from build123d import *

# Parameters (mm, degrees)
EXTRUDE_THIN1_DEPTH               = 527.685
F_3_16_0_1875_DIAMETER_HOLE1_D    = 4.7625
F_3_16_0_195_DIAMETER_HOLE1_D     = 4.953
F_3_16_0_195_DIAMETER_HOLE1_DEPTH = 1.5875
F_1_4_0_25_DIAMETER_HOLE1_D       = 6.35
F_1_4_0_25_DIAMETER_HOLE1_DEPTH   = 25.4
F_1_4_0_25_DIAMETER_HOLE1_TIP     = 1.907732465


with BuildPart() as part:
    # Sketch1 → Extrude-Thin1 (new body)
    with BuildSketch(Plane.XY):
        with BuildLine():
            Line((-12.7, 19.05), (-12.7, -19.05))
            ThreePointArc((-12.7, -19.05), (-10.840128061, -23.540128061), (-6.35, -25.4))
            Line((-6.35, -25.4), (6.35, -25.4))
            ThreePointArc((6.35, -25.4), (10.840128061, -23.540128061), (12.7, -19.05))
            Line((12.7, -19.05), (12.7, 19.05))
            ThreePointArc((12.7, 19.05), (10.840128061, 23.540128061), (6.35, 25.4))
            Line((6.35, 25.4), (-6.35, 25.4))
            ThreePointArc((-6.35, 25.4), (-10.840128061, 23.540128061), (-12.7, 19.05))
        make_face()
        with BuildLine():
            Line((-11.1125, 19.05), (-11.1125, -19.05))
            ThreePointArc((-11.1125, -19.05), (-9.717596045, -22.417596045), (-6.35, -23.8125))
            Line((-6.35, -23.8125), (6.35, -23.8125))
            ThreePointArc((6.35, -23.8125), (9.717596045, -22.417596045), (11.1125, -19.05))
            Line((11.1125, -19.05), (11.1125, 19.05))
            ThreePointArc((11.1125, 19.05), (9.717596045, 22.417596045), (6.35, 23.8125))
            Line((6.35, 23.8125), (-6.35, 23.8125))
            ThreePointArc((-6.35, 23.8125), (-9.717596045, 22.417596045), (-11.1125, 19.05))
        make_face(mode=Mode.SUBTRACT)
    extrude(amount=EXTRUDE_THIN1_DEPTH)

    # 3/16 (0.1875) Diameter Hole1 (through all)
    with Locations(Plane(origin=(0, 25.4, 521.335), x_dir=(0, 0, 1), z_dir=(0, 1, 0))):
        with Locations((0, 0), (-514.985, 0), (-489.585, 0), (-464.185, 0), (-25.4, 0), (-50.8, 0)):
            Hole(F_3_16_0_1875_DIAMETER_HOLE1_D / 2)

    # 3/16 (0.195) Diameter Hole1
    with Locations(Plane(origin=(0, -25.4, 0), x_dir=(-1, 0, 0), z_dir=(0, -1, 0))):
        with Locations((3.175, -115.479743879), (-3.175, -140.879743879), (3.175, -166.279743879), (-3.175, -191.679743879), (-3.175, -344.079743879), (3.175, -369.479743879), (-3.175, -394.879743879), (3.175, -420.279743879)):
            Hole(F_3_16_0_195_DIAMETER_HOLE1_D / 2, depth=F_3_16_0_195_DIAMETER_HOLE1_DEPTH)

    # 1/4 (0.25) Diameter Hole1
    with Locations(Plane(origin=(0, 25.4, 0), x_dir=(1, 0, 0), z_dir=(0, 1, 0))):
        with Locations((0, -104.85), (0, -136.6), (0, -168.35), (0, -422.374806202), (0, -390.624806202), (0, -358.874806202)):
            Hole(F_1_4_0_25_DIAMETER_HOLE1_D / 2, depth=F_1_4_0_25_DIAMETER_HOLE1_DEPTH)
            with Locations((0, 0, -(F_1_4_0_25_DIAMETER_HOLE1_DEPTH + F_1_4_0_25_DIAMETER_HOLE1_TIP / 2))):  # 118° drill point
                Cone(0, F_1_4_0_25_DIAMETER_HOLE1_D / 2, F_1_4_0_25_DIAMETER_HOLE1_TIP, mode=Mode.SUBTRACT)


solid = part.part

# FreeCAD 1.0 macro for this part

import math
import FreeCAD as App
import Part
import Sketcher
Q = App.Units.Quantity

doc = App.newDocument("Part")
body = doc.addObject("PartDesign::Body", "Body")

# Sketch on XY plane
sketch1 = doc.addObject("Sketcher::SketchObject", "Sketch")
body.addObject(sketch1)
sketch1.AttachmentSupport = (doc.XY_Plane, [""])
sketch1.MapMode = "FlatFace"
sketch1.addGeometry([
    Part.LineSegment(App.Vector(-12.7, 19.05, 0), App.Vector(-12.7, -19.05, 0)),  # 0
    Part.ArcOfCircle(Part.Circle(App.Vector(-6.35, -19.05, 0), App.Vector(0, 0, 1), 6.35), math.radians(180), math.radians(270)),  # 1
    Part.LineSegment(App.Vector(-6.35, -25.4, 0), App.Vector(6.35, -25.4, 0)),  # 2
    Part.ArcOfCircle(Part.Circle(App.Vector(6.35, -19.05, 0), App.Vector(0, 0, 1), 6.35), math.radians(-90), math.radians(0)),  # 3
    Part.LineSegment(App.Vector(12.7, -19.05, 0), App.Vector(12.7, 19.05, 0)),  # 4
    Part.ArcOfCircle(Part.Circle(App.Vector(6.35, 19.05, 0), App.Vector(0, 0, 1), 6.35), math.radians(0), math.radians(90)),  # 5
    Part.LineSegment(App.Vector(6.35, 25.4, 0), App.Vector(-6.35, 25.4, 0)),  # 6
    Part.ArcOfCircle(Part.Circle(App.Vector(-6.35, 19.05, 0), App.Vector(0, 0, 1), 6.35), math.radians(90), math.radians(180)),  # 7
    Part.LineSegment(App.Vector(-11.1125, -19.05, 0), App.Vector(-11.1125, 19.05, 0)),  # 8
    Part.ArcOfCircle(Part.Circle(App.Vector(-6.35, 19.05, 0), App.Vector(0, 0, 1), 4.7625), math.radians(90), math.radians(180)),  # 9
    Part.LineSegment(App.Vector(-6.35, 23.8125, 0), App.Vector(6.35, 23.8125, 0)),  # 10
    Part.ArcOfCircle(Part.Circle(App.Vector(6.35, 19.05, 0), App.Vector(0, 0, 1), 4.7625), math.radians(0), math.radians(90)),  # 11
    Part.LineSegment(App.Vector(11.1125, 19.05, 0), App.Vector(11.1125, -19.05, 0)),  # 12
    Part.ArcOfCircle(Part.Circle(App.Vector(6.35, -19.05, 0), App.Vector(0, 0, 1), 4.7625), math.radians(-90), math.radians(0)),  # 13
    Part.LineSegment(App.Vector(6.35, -23.8125, 0), App.Vector(-6.35, -23.8125, 0)),  # 14
    Part.ArcOfCircle(Part.Circle(App.Vector(-6.35, -19.05, 0), App.Vector(0, 0, 1), 4.7625), math.radians(-180), math.radians(-90)),  # 15
], False)
sketch1.addConstraint([
    Sketcher.Constraint("Tangent", 0, 2, 1, 1),
    Sketcher.Constraint("Tangent", 1, 2, 2, 1),
    Sketcher.Constraint("Tangent", 2, 2, 3, 1),
    Sketcher.Constraint("Tangent", 3, 2, 4, 1),
    Sketcher.Constraint("Tangent", 4, 2, 5, 1),
    Sketcher.Constraint("Tangent", 5, 2, 6, 1),
    Sketcher.Constraint("Tangent", 6, 2, 7, 1),
    Sketcher.Constraint("Tangent", 7, 2, 0, 1),
    Sketcher.Constraint("Tangent", 8, 2, 9, 2),
    Sketcher.Constraint("Tangent", 9, 1, 10, 1),
    Sketcher.Constraint("Tangent", 10, 2, 11, 2),
    Sketcher.Constraint("Tangent", 11, 1, 12, 1),
    Sketcher.Constraint("Tangent", 12, 2, 13, 2),
    Sketcher.Constraint("Tangent", 13, 1, 14, 1),
    Sketcher.Constraint("Tangent", 14, 2, 15, 2),
    Sketcher.Constraint("Tangent", 15, 1, 8, 1),
    Sketcher.Constraint("Vertical", 0),
    Sketcher.Constraint("Horizontal", 2),
    Sketcher.Constraint("Vertical", 4),
    Sketcher.Constraint("Horizontal", 6),
    Sketcher.Constraint("Vertical", 8),
    Sketcher.Constraint("Horizontal", 10),
    Sketcher.Constraint("Vertical", 12),
    Sketcher.Constraint("Horizontal", 14),
    Sketcher.Constraint("Coincident", 9, 3, 7, 3),
    Sketcher.Constraint("Coincident", 11, 3, 5, 3),
    Sketcher.Constraint("Coincident", 13, 3, 3, 3),
    Sketcher.Constraint("Equal", 1, 3),
    Sketcher.Constraint("Equal", 3, 5),
    Sketcher.Constraint("Equal", 5, 7),
    Sketcher.Constraint("Equal", 13, 15),
    Sketcher.Constraint("Symmetric", 1, 3, 5, 3, -1, 1),
    Sketcher.Constraint("Radius", 1, Q("0.25 in")),
    Sketcher.Constraint("DistanceX", 2, 1, 2, 2, Q("0.5 in")),
    Sketcher.Constraint("DistanceY", 0, 2, 0, 1, Q("1.5 in")),
    Sketcher.Constraint("Radius", 9, Q("0.1875 in")),
])
pad1 = doc.addObject("PartDesign::Pad", "Pad")
body.addObject(pad1)
pad1.Profile = sketch1
pad1.Length = Q("20.775 in")

# Sketch on XZ plane
sketch2 = doc.addObject("Sketcher::SketchObject", "Sketch001")
body.addObject(sketch2)
sketch2.AttachmentSupport = (doc.XZ_Plane, [""])
sketch2.MapMode = "FlatFace"
sketch2.AttachmentOffset = App.Placement(App.Vector(0, 0, -1 * 25.4), App.Rotation())
sketch2.addGeometry([
    Part.Circle(App.Vector(0, 521.335, 0), App.Vector(0, 0, 1), 2.38125),  # 0
    Part.Circle(App.Vector(0, 6.35, 0), App.Vector(0, 0, 1), 2.38125),  # 1
    Part.Circle(App.Vector(0, 31.75, 0), App.Vector(0, 0, 1), 2.38125),  # 2
    Part.Circle(App.Vector(0, 57.15, 0), App.Vector(0, 0, 1), 2.38125),  # 3
    Part.Circle(App.Vector(0, 495.935, 0), App.Vector(0, 0, 1), 2.38125),  # 4
    Part.Circle(App.Vector(0, 470.535, 0), App.Vector(0, 0, 1), 2.38125),  # 5
], False)
sketch2.addConstraint([
    Sketcher.Constraint("Equal", 0, 1),
    Sketcher.Constraint("Equal", 1, 2),
    Sketcher.Constraint("Equal", 2, 3),
    Sketcher.Constraint("Equal", 3, 4),
    Sketcher.Constraint("Equal", 4, 5),
    Sketcher.Constraint("PointOnObject", 0, 3, -2),
    Sketcher.Constraint("PointOnObject", 1, 3, -2),
    Sketcher.Constraint("PointOnObject", 2, 3, -2),
    Sketcher.Constraint("PointOnObject", 3, 3, -2),
    Sketcher.Constraint("PointOnObject", 4, 3, -2),
    Sketcher.Constraint("PointOnObject", 5, 3, -2),
    Sketcher.Constraint("Diameter", 0, Q("0.1875 in")),
    Sketcher.Constraint("DistanceY", 1, 3, 2, 3, Q("1 in")),
    Sketcher.Constraint("DistanceY", 2, 3, 3, 3, Q("1 in")),
    Sketcher.Constraint("DistanceY", 4, 3, 0, 3, Q("1 in")),
    Sketcher.Constraint("DistanceY", 5, 3, 4, 3, Q("1 in")),
    Sketcher.Constraint("DistanceY", -1, 1, 1, 3, Q("0.25 in")),
    Sketcher.Constraint("DistanceY", -1, 1, 0, 3, Q("20.525 in")),
])
doc.recompute()
hole = doc.addObject("PartDesign::Hole", "Hole")
body.addObject(hole)
hole.Profile = sketch2
hole.ThreadType = "None"
hole.Diameter = Q("0.1875 in")
hole.DepthType = "ThroughAll"
hole.Reversed = True

# Sketch on XZ plane
sketch3 = doc.addObject("Sketcher::SketchObject", "Sketch002")
body.addObject(sketch3)
sketch3.AttachmentSupport = (doc.XZ_Plane, [""])
sketch3.MapMode = "FlatFace"
sketch3.AttachmentOffset = App.Placement(App.Vector(0, 0, 1 * 25.4), App.Rotation())
sketch3.addGeometry([
    Part.Circle(App.Vector(-3.175, 115.479744, 0), App.Vector(0, 0, 1), 2.4765),  # 0
    Part.Circle(App.Vector(3.175, 140.879744, 0), App.Vector(0, 0, 1), 2.4765),  # 1
    Part.Circle(App.Vector(-3.175, 166.279744, 0), App.Vector(0, 0, 1), 2.4765),  # 2
    Part.Circle(App.Vector(3.175, 191.679744, 0), App.Vector(0, 0, 1), 2.4765),  # 3
    Part.Circle(App.Vector(3.175, 344.079744, 0), App.Vector(0, 0, 1), 2.4765),  # 4
    Part.Circle(App.Vector(-3.175, 369.479744, 0), App.Vector(0, 0, 1), 2.4765),  # 5
    Part.Circle(App.Vector(3.175, 394.879744, 0), App.Vector(0, 0, 1), 2.4765),  # 6
    Part.Circle(App.Vector(-3.175, 420.279744, 0), App.Vector(0, 0, 1), 2.4765),  # 7
], False)
sketch3.addConstraint([
    Sketcher.Constraint("Equal", 0, 1),
    Sketcher.Constraint("Equal", 1, 2),
    Sketcher.Constraint("Equal", 2, 3),
    Sketcher.Constraint("Equal", 3, 4),
    Sketcher.Constraint("Equal", 4, 5),
    Sketcher.Constraint("Equal", 5, 6),
    Sketcher.Constraint("Equal", 6, 7),
    Sketcher.Constraint("Vertical", 0, 3, 2, 3),
    Sketcher.Constraint("Vertical", 1, 3, 3, 3),
    Sketcher.Constraint("Vertical", 3, 3, 4, 3),
    Sketcher.Constraint("Vertical", 2, 3, 5, 3),
    Sketcher.Constraint("Vertical", 4, 3, 6, 3),
    Sketcher.Constraint("Vertical", 5, 3, 7, 3),
    Sketcher.Constraint("Diameter", 0, Q("0.195 in")),
    Sketcher.Constraint("DistanceY", 0, 3, 1, 3, Q("1 in")),
    Sketcher.Constraint("DistanceY", 1, 3, 2, 3, Q("1 in")),
    Sketcher.Constraint("DistanceY", 2, 3, 3, 3, Q("1 in")),
    Sketcher.Constraint("DistanceY", 3, 3, 4, 3, Q("6 in")),
    Sketcher.Constraint("DistanceY", 4, 3, 5, 3, Q("1 in")),
    Sketcher.Constraint("DistanceY", 5, 3, 6, 3, Q("1 in")),
    Sketcher.Constraint("DistanceY", 6, 3, 7, 3, Q("1 in")),
    Sketcher.Constraint("DistanceX", 0, 3, 1, 3, Q("0.25 in")),
    Sketcher.Constraint("DistanceX", 0, 3, -1, 1, Q("0.125 in")),
    Sketcher.Constraint("DistanceY", -1, 1, 0, 3, Q("115.479744 mm")),
])
doc.recompute()
hole2 = doc.addObject("PartDesign::Hole", "Hole001")
body.addObject(hole2)
hole2.Profile = sketch3
hole2.ThreadType = "None"
hole2.Diameter = Q("0.195 in")
hole2.DepthType = "Dimension"
hole2.Depth = Q("0.0625 in")
hole2.DrillPoint = "Flat"

# Sketch on XZ plane
sketch4 = doc.addObject("Sketcher::SketchObject", "Sketch003")
body.addObject(sketch4)
sketch4.AttachmentSupport = (doc.XZ_Plane, [""])
sketch4.MapMode = "FlatFace"
sketch4.AttachmentOffset = App.Placement(App.Vector(0, 0, -1 * 25.4), App.Rotation())
sketch4.addGeometry([
    Part.Circle(App.Vector(0, 104.85, 0), App.Vector(0, 0, 1), 3.175),  # 0
    Part.Circle(App.Vector(0, 136.6, 0), App.Vector(0, 0, 1), 3.175),  # 1
    Part.Circle(App.Vector(0, 168.35, 0), App.Vector(0, 0, 1), 3.175),  # 2
    Part.Circle(App.Vector(0, 422.374806, 0), App.Vector(0, 0, 1), 3.175),  # 3
    Part.Circle(App.Vector(0, 390.624806, 0), App.Vector(0, 0, 1), 3.175),  # 4
    Part.Circle(App.Vector(0, 358.874806, 0), App.Vector(0, 0, 1), 3.175),  # 5
], False)
sketch4.addConstraint([
    Sketcher.Constraint("Equal", 0, 1),
    Sketcher.Constraint("Equal", 1, 2),
    Sketcher.Constraint("Equal", 2, 3),
    Sketcher.Constraint("Equal", 3, 4),
    Sketcher.Constraint("Equal", 4, 5),
    Sketcher.Constraint("PointOnObject", 0, 3, -2),
    Sketcher.Constraint("PointOnObject", 1, 3, -2),
    Sketcher.Constraint("PointOnObject", 2, 3, -2),
    Sketcher.Constraint("PointOnObject", 3, 3, -2),
    Sketcher.Constraint("PointOnObject", 4, 3, -2),
    Sketcher.Constraint("PointOnObject", 5, 3, -2),
    Sketcher.Constraint("Diameter", 0, Q("0.25 in")),
    Sketcher.Constraint("DistanceY", 0, 3, 2, 3, Q("2.5 in")),
    Sketcher.Constraint("DistanceY", 5, 3, 3, 3, Q("2.5 in")),
    Sketcher.Constraint("DistanceY", 0, 3, 1, 3, Q("1.25 in")),
    Sketcher.Constraint("DistanceY", 4, 3, 3, 3, Q("1.25 in")),
    Sketcher.Constraint("DistanceY", -1, 1, 0, 3, Q("104.85 mm")),
    Sketcher.Constraint("DistanceY", -1, 1, 3, 3, Q("422.374806 mm")),
])
doc.recompute()
hole3 = doc.addObject("PartDesign::Hole", "Hole002")
body.addObject(hole3)
hole3.Profile = sketch4
hole3.ThreadType = "None"
hole3.Diameter = Q("0.25 in")
hole3.DepthType = "Dimension"
hole3.Depth = Q("1 in")
hole3.DrillPoint = "Angled"
hole3.DrillPointAngle = 118
hole3.Reversed = True

doc.recompute()
